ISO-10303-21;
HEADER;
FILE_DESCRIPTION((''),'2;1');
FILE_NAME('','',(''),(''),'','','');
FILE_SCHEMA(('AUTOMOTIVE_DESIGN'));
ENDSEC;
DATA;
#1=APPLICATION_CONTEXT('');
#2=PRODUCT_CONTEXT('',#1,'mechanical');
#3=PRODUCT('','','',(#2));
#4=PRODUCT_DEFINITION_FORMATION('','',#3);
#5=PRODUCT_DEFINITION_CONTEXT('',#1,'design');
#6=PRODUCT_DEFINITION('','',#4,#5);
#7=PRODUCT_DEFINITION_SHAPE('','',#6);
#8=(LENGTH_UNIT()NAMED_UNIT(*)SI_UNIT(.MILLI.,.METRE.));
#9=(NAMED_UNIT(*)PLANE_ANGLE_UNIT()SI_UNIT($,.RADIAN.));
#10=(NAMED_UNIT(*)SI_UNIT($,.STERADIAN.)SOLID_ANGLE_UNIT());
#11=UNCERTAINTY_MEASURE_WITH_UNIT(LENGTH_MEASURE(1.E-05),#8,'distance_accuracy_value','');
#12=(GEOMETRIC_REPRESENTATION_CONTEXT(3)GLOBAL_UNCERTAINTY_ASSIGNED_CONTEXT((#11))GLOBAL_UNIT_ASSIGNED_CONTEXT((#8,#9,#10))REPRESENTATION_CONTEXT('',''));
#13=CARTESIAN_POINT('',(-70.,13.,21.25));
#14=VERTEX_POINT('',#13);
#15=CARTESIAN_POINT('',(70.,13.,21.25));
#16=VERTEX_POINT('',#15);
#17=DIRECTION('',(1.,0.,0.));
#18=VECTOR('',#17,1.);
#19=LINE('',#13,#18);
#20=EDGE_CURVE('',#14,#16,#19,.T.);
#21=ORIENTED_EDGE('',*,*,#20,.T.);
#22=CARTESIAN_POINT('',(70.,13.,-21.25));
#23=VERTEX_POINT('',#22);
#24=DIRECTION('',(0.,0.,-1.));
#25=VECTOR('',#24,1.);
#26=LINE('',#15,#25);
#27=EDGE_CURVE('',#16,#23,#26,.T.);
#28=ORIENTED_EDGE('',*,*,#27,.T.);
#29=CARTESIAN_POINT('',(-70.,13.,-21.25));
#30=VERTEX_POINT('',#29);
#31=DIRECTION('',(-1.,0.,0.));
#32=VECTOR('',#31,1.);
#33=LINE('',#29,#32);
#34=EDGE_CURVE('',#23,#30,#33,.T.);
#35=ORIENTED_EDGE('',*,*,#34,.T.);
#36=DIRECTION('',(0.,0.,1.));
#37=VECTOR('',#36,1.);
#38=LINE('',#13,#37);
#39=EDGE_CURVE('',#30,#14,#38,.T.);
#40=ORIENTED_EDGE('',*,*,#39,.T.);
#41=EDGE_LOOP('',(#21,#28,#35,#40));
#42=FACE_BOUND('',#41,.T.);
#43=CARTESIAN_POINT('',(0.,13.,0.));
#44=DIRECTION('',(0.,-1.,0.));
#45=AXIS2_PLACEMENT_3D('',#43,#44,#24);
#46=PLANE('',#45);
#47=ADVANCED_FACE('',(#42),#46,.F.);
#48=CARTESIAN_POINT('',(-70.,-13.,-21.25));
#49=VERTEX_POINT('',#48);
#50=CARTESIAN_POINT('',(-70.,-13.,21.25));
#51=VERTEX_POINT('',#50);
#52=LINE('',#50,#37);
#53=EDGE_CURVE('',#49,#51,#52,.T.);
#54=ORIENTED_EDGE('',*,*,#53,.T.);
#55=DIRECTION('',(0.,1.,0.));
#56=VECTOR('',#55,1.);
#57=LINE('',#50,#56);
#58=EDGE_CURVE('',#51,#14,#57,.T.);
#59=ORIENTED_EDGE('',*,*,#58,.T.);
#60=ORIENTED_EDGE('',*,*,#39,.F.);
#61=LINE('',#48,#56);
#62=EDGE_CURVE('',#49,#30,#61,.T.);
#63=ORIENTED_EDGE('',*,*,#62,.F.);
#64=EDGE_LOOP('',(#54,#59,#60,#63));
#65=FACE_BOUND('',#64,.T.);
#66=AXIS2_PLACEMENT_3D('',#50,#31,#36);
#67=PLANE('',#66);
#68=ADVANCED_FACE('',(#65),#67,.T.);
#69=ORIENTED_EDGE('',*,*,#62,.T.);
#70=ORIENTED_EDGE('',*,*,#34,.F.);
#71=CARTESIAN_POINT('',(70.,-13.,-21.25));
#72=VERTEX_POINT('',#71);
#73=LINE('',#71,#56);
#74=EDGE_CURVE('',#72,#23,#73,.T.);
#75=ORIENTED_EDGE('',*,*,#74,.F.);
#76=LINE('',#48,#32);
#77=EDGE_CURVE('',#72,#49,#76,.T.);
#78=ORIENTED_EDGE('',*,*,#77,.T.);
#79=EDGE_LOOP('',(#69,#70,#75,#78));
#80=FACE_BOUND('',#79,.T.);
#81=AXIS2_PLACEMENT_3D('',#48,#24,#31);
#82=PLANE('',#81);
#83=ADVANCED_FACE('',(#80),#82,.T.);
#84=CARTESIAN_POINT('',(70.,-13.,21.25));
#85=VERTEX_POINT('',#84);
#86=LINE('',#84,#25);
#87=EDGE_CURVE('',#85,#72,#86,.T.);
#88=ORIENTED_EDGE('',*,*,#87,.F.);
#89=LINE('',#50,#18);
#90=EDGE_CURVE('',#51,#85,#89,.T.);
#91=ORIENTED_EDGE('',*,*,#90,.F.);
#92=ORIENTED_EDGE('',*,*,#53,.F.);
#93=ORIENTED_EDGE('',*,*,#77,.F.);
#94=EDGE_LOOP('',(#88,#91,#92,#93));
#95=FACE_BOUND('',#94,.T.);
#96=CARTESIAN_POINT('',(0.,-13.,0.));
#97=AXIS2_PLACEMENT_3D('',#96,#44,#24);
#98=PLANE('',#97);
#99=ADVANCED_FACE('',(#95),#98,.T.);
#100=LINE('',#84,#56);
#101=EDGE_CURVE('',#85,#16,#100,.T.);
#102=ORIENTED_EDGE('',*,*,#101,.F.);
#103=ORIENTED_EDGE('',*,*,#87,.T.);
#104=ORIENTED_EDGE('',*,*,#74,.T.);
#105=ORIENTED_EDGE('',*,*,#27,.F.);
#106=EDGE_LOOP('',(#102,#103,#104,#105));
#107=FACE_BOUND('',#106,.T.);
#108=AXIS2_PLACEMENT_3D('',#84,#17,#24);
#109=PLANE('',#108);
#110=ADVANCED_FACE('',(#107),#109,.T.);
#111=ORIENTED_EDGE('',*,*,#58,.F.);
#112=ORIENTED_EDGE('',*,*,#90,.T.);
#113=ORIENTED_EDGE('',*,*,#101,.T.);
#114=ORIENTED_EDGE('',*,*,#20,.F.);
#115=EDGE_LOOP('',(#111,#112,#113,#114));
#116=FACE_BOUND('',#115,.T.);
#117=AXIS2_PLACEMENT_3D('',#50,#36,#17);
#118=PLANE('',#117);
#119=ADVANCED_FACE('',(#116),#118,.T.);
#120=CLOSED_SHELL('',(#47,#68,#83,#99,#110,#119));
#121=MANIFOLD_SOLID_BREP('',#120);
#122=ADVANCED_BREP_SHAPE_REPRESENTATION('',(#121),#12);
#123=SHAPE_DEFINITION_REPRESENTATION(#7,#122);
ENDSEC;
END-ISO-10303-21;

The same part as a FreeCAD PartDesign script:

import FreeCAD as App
import Part
import Sketcher

V = App.Vector
Q = App.Units.Quantity

doc = App.newDocument("Part")
body = doc.addObject("PartDesign::Body", "Body")

# Sketch on XZ plane
sketch1 = body.newObject("Sketcher::SketchObject", "Sketch")
sketch1.AttachmentSupport = (doc.getObject("XZ_Plane"), [""])
sketch1.MapMode = "FlatFace"
sketch1.addGeometry(Part.LineSegment(V(-70, -21, 0), V(-70, 21, 0)), False)
sketch1.addGeometry(Part.LineSegment(V(-70, 21, 0), V(70, 21, 0)), False)
sketch1.addGeometry(Part.LineSegment(V(70, 21, 0), V(70, -21, 0)), False)
sketch1.addGeometry(Part.LineSegment(V(70, -21, 0), V(-70, -21, 0)), False)
sketch1.addConstraint(Sketcher.Constraint("Coincident", 0, 2, 1, 1))
sketch1.addConstraint(Sketcher.Constraint("Coincident", 1, 2, 2, 1))
sketch1.addConstraint(Sketcher.Constraint("Coincident", 2, 2, 3, 1))
sketch1.addConstraint(Sketcher.Constraint("Coincident", 3, 2, 0, 1))
sketch1.addConstraint(Sketcher.Constraint("Vertical", 0))
sketch1.addConstraint(Sketcher.Constraint("Horizontal", 1))
sketch1.addConstraint(Sketcher.Constraint("Vertical", 2))
sketch1.addConstraint(Sketcher.Constraint("Horizontal", 3))
sketch1.addConstraint(Sketcher.Constraint("Symmetric", 0, 2, 2, 2, -1, 1))
sketch1.addConstraint(Sketcher.Constraint("DistanceX", 1, 1, 1, 2, Q("140 mm")))
sketch1.addConstraint(Sketcher.Constraint("DistanceY", 0, 1, 0, 2, Q("42.5 mm")))
pad1 = body.newObject("PartDesign::Pad", "Pad")
pad1.Profile = sketch1
pad1.Type = "TwoLengths"
pad1.Length = 13
pad1.Length2 = 13
pad1.Reversed = True

doc.recompute()
